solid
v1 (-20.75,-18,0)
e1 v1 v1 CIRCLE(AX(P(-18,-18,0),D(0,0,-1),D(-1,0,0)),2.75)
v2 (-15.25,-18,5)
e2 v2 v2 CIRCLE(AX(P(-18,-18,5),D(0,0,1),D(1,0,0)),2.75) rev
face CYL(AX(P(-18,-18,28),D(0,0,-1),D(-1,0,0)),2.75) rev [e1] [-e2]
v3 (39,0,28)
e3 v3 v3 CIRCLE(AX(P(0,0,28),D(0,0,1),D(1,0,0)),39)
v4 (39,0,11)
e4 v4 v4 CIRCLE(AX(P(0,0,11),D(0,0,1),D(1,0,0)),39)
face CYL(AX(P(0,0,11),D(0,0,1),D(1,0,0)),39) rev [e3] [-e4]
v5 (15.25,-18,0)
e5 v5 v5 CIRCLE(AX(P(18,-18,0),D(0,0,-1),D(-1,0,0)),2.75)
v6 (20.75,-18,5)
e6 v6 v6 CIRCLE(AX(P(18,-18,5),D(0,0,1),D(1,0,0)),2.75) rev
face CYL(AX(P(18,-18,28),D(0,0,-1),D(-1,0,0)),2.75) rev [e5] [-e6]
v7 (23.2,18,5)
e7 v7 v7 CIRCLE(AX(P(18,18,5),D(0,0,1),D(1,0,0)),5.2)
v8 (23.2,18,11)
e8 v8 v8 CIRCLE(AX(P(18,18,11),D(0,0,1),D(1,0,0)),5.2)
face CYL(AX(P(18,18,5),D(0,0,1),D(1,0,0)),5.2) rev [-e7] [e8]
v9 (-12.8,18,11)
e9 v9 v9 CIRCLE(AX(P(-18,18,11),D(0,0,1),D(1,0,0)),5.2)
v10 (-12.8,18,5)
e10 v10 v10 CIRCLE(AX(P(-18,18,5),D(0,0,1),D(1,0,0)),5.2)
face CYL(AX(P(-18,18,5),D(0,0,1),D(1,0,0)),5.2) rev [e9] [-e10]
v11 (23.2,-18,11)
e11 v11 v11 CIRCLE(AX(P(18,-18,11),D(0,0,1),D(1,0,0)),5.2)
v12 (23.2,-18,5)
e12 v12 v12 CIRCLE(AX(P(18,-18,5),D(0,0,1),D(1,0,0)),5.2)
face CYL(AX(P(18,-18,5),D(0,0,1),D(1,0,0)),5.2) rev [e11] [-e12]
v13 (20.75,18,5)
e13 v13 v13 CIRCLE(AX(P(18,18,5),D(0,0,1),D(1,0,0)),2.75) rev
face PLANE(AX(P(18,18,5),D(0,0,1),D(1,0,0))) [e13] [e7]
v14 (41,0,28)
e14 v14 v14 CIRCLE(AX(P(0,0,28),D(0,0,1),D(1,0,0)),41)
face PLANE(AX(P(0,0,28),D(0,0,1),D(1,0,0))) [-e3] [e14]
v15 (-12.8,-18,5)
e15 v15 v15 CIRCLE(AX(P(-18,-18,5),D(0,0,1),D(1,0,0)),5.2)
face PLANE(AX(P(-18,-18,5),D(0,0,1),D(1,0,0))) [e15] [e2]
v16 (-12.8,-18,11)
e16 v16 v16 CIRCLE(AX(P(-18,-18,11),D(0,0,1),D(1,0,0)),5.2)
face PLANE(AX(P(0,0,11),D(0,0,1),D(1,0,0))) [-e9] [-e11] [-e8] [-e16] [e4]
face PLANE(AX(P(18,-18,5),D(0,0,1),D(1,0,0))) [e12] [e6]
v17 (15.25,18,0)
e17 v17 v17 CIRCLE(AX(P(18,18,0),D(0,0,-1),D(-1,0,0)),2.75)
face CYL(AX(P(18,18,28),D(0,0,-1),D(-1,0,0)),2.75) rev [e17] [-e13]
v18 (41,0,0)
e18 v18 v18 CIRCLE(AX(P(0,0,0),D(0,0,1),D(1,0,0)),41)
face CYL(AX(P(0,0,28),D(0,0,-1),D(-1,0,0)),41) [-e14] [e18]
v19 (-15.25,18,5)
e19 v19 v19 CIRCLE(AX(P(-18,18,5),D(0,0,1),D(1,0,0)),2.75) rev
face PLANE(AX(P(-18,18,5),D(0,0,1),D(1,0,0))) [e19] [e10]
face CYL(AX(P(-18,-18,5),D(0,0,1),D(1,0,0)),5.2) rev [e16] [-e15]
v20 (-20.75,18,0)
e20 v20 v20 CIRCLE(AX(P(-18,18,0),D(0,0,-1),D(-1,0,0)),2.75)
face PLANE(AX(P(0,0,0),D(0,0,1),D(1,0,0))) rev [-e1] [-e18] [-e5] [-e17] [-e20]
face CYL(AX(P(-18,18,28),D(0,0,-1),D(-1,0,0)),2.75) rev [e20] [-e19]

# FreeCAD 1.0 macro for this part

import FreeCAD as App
import Part
import Sketcher

V = App.Vector
Q = App.Units.Quantity

doc = App.newDocument("Part")
params = doc.addObject("Spreadsheet::Sheet", "Params")
for row, (alias, value) in enumerate([
    ("sketch1_diameter", "82 mm"),
    ("pad1_length", "28 mm"),
    ("sketch2_diameter", "78 mm"),
    ("pocket1_length", "17 mm"),
    ("sketch3_diameter", "5.5 mm"),
    ("sketch4_diameter", "10.4 mm"),
    ("pocket3_length", "6 mm"),
], start=1):
    params.set(f"A{row}", alias)
    params.set(f"B{row}", "=" + value)
    params.setAlias(f"B{row}", alias)

body = doc.addObject("PartDesign::Body", "Body")

# Sketch on XY plane
sketch1 = body.newObject("Sketcher::SketchObject", "Sketch")
sketch1.AttachmentSupport = (doc.getObject("XY_Plane"), [""])
sketch1.MapMode = "FlatFace"
sketch1.addGeometry(Part.Circle(V(0, 0, 0), V(0, 0, 1), 41), False)
sketch1.addConstraint(Sketcher.Constraint("Coincident", 0, 3, -1, 1))
sketch1.addConstraint(Sketcher.Constraint("Diameter", 0, Q("82 mm")))
sketch1.setExpression("Constraints[1]", "Params.sketch1_diameter")
pad1 = body.newObject("PartDesign::Pad", "Pad")
pad1.Profile = sketch1
pad1.setExpression("Length", "Params.pad1_length")

# Sketch on XY plane
sketch2 = body.newObject("Sketcher::SketchObject", "Sketch001")
sketch2.AttachmentSupport = (doc.getObject("XY_Plane"), [""])
sketch2.MapMode = "FlatFace"
sketch2.AttachmentOffset = App.Placement(V(0, 0, 28), App.Rotation())
sketch2.addGeometry(Part.Circle(V(0, 0, 0), V(0, 0, 1), 39), False)
sketch2.addConstraint(Sketcher.Constraint("Coincident", 0, 3, -1, 1))
sketch2.addConstraint(Sketcher.Constraint("Diameter", 0, Q("78 mm")))
sketch2.setExpression("Constraints[1]", "Params.sketch2_diameter")
pocket1 = body.newObject("PartDesign::Pocket", "Pocket")
pocket1.Profile = sketch2
pocket1.setExpression("Length", "Params.pocket1_length")

# Sketch on XY plane
sketch3 = body.newObject("Sketcher::SketchObject", "Sketch002")
sketch3.AttachmentSupport = (doc.getObject("XY_Plane"), [""])
sketch3.MapMode = "FlatFace"
sketch3.addGeometry(Part.Circle(V(18, 18, 0), V(0, 0, 1), 2.8), False)
sketch3.addGeometry(Part.Circle(V(-18, 18, 0), V(0, 0, 1), 2.8), False)
sketch3.addGeometry(Part.Circle(V(-18, -18, 0), V(0, 0, 1), 2.8), False)
sketch3.addGeometry(Part.Circle(V(18, -18, 0), V(0, 0, 1), 2.8), False)
sketch3.addConstraint(Sketcher.Constraint("Equal", 0, 1))
sketch3.addConstraint(Sketcher.Constraint("Equal", 1, 2))
sketch3.addConstraint(Sketcher.Constraint("Equal", 2, 3))
sketch3.addConstraint(Sketcher.Constraint("Symmetric", 0, 3, 2, 3, -1, 1))
sketch3.addConstraint(Sketcher.Constraint("Symmetric", 1, 3, 3, 3, -1, 1))
sketch3.addConstraint(Sketcher.Constraint("Symmetric", 0, 3, 1, 3, -2))
sketch3.addConstraint(Sketcher.Constraint("Diameter", 0, Q("5.5 mm")))
sketch3.addConstraint(Sketcher.Constraint("DistanceX", -1, 1, 0, 3, Q("18 mm")))
sketch3.addConstraint(Sketcher.Constraint("DistanceY", -1, 1, 0, 3, Q("18 mm")))
sketch3.setExpression("Constraints[6]", "Params.sketch3_diameter")
pocket2 = body.newObject("PartDesign::Pocket", "Pocket001")
pocket2.Profile = sketch3
pocket2.Type = "ThroughAll"
pocket2.Reversed = True

# Sketch on XY plane
sketch4 = body.newObject("Sketcher::SketchObject", "Sketch003")
sketch4.AttachmentSupport = (doc.getObject("XY_Plane"), [""])
sketch4.MapMode = "FlatFace"
sketch4.AttachmentOffset = App.Placement(V(0, 0, 11), App.Rotation())
sketch4.addGeometry(Part.Circle(V(-18, 18, 0), V(0, 0, 1), 5), False)
sketch4.addGeometry(Part.Circle(V(18, 18, 0), V(0, 0, 1), 5), False)
sketch4.addGeometry(Part.Circle(V(18, -18, 0), V(0, 0, 1), 5), False)
sketch4.addGeometry(Part.Circle(V(-18, -18, 0), V(0, 0, 1), 5), False)
sketch4.addConstraint(Sketcher.Constraint("Equal", 0, 1))
sketch4.addConstraint(Sketcher.Constraint("Equal", 1, 2))
sketch4.addConstraint(Sketcher.Constraint("Equal", 2, 3))
sketch4.addConstraint(Sketcher.Constraint("Symmetric", 0, 3, 2, 3, -1, 1))
sketch4.addConstraint(Sketcher.Constraint("Symmetric", 1, 3, 3, 3, -1, 1))
sketch4.addConstraint(Sketcher.Constraint("Symmetric", 0, 3, 1, 3, -2))
sketch4.addConstraint(Sketcher.Constraint("Diameter", 0, Q("10.4 mm")))
sketch4.addConstraint(Sketcher.Constraint("DistanceX", 0, 3, -1, 1, Q("18 mm")))
sketch4.addConstraint(Sketcher.Constraint("DistanceY", -1, 1, 0, 3, Q("18 mm")))
sketch4.setExpression("Constraints[6]", "Params.sketch4_diameter")
pocket3 = body.newObject("PartDesign::Pocket", "Pocket002")
pocket3.Profile = sketch4
pocket3.setExpression("Length", "Params.pocket3_length")

doc.recompute()
